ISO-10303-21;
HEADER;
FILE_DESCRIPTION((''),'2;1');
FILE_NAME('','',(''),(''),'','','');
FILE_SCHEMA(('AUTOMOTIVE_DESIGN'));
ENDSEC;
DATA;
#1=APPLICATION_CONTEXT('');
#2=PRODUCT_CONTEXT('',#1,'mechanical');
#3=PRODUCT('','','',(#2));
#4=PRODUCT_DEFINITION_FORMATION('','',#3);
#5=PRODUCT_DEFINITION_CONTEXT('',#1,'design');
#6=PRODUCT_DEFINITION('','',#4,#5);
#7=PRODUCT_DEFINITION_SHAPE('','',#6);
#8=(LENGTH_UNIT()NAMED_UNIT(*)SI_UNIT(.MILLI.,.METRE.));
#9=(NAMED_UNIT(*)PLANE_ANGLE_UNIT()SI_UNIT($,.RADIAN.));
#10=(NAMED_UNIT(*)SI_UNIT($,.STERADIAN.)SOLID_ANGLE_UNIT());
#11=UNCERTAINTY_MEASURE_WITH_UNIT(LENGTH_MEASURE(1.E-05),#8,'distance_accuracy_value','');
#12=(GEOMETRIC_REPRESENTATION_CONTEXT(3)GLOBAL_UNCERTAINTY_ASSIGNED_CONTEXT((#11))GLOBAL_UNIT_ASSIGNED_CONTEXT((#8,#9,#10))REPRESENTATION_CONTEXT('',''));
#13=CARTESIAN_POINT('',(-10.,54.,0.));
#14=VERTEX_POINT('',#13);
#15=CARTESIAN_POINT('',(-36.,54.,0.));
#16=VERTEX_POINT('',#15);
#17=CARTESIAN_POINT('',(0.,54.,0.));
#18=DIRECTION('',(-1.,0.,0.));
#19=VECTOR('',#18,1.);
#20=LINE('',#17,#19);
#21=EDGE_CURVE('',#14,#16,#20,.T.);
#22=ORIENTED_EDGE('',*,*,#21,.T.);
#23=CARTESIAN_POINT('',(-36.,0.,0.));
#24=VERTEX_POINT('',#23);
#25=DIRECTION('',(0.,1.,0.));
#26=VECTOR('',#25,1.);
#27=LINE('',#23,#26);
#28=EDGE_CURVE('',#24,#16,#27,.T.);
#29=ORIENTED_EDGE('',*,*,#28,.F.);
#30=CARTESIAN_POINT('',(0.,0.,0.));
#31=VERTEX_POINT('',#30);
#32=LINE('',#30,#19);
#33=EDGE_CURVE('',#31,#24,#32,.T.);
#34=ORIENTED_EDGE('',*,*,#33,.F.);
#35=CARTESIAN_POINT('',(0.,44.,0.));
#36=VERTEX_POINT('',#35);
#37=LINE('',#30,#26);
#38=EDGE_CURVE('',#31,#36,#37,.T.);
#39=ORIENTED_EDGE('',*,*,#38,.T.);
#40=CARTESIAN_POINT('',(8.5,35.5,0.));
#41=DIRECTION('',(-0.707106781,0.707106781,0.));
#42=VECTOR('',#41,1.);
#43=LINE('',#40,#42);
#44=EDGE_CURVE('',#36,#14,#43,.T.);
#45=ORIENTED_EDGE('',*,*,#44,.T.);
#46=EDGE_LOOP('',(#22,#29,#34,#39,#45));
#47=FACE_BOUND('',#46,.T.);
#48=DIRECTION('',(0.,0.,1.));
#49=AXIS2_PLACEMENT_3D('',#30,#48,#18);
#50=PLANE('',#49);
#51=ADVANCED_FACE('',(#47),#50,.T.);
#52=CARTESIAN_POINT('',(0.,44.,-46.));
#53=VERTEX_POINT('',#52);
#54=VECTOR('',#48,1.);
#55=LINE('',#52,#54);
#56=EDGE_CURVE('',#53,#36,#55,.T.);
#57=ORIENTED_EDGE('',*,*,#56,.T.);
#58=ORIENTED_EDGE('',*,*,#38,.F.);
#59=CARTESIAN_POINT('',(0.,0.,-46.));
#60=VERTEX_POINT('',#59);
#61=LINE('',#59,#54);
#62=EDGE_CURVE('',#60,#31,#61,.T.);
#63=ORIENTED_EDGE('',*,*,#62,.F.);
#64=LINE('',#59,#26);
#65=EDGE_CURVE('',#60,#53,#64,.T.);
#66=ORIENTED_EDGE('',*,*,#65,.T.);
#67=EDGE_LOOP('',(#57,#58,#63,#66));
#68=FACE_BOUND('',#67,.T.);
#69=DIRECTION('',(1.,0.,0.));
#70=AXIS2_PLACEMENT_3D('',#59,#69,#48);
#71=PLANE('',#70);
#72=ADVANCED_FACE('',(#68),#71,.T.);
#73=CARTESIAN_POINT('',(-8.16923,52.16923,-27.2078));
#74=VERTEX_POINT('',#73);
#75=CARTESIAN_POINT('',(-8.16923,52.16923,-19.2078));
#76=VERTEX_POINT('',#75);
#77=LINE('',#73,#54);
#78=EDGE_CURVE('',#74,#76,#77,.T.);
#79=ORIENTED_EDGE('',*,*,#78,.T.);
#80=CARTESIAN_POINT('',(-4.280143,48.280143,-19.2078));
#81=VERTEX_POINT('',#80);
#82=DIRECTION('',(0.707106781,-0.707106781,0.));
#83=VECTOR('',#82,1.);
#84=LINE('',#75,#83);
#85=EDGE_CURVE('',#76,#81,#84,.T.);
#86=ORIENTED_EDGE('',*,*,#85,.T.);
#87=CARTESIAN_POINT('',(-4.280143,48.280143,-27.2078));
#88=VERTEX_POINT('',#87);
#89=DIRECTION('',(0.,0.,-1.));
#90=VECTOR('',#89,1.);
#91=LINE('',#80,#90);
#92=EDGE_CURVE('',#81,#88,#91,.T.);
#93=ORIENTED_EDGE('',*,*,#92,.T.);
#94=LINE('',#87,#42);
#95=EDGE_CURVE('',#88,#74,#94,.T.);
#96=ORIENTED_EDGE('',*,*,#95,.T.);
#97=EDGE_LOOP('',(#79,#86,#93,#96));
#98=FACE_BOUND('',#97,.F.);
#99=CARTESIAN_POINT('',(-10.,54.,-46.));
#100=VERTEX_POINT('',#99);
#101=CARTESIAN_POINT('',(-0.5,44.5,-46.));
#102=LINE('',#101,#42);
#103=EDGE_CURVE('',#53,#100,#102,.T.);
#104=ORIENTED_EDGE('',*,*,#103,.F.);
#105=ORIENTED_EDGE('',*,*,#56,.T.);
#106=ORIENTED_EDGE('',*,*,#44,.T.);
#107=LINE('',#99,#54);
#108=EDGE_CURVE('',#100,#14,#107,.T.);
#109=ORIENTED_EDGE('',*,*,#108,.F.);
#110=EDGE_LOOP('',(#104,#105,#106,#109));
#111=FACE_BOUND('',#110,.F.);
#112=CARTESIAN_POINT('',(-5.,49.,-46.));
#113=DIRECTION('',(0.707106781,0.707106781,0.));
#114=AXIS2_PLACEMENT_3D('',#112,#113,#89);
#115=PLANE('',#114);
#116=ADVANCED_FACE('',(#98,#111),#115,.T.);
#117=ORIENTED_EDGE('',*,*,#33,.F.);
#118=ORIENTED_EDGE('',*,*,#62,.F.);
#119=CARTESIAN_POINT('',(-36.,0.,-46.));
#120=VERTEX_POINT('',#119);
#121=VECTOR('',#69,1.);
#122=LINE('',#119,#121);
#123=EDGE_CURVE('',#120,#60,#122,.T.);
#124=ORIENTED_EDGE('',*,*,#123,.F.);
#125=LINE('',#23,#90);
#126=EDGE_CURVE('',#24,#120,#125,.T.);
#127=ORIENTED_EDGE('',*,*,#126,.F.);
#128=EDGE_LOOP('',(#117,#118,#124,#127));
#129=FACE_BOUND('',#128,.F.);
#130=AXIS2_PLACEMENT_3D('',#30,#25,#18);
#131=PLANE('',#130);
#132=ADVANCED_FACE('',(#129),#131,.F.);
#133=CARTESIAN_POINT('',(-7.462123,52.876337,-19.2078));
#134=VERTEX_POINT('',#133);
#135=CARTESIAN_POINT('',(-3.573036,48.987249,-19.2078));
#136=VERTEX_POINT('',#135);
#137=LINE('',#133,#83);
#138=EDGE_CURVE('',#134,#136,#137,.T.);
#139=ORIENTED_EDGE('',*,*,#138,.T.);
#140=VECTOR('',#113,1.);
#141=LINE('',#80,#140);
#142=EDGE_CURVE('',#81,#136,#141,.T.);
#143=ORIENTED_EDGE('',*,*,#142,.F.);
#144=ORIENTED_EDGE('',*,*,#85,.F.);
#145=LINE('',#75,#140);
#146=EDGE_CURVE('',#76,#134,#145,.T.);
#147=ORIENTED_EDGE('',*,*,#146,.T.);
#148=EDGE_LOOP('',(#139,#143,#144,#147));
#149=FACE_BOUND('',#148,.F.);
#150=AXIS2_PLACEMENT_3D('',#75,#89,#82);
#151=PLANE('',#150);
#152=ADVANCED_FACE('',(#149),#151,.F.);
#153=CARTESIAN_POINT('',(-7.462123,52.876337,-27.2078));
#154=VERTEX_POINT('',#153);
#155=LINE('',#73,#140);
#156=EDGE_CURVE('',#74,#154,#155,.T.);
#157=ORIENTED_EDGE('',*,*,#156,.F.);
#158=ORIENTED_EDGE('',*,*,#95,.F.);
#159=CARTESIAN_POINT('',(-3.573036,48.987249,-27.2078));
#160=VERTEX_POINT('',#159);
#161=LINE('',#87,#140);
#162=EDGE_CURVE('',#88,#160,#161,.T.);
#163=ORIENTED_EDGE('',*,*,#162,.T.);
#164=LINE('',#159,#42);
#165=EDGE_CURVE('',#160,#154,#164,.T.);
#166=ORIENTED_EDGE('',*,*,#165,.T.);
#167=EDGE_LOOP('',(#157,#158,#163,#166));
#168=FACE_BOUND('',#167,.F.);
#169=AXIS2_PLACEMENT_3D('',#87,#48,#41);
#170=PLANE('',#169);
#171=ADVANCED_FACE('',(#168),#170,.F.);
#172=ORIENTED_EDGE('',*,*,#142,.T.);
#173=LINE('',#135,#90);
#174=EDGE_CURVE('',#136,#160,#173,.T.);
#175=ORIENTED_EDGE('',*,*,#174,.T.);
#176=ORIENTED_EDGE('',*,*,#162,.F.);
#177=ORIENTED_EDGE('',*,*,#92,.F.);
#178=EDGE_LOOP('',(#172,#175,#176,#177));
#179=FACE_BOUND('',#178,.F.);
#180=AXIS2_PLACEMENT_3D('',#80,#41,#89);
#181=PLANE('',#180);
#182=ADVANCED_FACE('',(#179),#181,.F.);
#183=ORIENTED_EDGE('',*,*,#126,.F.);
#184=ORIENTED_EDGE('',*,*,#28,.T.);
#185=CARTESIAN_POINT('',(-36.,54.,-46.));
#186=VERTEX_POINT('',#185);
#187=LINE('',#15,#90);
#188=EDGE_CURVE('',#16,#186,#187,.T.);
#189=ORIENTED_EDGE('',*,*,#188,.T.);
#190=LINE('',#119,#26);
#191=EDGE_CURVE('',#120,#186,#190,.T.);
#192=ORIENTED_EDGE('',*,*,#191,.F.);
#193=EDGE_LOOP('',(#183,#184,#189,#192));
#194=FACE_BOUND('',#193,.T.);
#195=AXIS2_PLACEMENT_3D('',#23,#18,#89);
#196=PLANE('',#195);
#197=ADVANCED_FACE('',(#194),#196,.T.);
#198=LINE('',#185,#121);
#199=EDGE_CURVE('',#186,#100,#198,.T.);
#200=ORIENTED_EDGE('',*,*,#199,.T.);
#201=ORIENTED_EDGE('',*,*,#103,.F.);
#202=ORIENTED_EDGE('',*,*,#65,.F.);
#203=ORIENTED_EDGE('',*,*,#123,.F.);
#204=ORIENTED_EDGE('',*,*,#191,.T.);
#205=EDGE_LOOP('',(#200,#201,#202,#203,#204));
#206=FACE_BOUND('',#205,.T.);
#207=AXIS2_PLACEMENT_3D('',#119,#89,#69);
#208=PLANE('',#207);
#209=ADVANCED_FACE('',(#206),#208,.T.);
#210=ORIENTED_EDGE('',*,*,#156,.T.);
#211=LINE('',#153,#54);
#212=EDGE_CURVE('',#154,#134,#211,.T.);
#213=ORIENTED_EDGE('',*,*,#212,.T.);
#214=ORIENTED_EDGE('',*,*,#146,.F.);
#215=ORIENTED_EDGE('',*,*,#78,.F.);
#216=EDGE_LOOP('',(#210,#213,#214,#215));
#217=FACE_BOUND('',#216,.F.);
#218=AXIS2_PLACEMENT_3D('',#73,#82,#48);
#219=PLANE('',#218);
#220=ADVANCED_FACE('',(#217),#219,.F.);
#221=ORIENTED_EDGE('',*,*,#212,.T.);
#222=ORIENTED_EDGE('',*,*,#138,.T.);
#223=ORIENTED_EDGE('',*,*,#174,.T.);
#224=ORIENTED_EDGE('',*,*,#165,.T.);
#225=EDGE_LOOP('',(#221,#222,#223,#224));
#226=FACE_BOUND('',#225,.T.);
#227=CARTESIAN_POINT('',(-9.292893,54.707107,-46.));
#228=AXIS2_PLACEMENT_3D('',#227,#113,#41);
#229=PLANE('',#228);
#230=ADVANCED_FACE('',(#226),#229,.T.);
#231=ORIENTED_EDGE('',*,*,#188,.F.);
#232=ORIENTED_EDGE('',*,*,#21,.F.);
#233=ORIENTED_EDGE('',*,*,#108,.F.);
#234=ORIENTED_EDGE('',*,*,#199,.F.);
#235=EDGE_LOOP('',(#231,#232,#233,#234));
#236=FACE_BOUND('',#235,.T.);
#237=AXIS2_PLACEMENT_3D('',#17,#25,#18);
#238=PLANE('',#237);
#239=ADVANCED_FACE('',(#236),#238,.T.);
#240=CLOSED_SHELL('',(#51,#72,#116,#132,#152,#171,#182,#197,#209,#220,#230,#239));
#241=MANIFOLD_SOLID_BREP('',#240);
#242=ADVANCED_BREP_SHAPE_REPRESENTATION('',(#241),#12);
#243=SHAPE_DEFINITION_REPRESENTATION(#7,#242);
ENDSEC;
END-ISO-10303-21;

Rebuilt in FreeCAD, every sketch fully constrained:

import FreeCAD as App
import Part
import Sketcher


def edges_at(feature, points):
    """Names of the edges that pass closest to the given points."""
    edges = feature.Shape.Edges
    near = lambda p: min(range(len(edges)), key=lambda i: edges[i].distToShape(Part.Vertex(*p))[0])
    return sorted({f"Edge{near(p) + 1}" for p in points})


def add_polygon(sketch, points):
    """Adds a closed chain of lines whose ends are joined by coincident constraints."""
    first, n = sketch.GeometryCount, len(points)
    for a, b in zip(points, points[1:] + points[:1]):
        sketch.addGeometry(Part.LineSegment(App.Vector(*a, 0), App.Vector(*b, 0)), False)
    for i in range(n):
        sketch.addConstraint(Sketcher.Constraint("Coincident", first + i, 2, first + (i + 1) % n, 1))

doc = App.newDocument("Part")
params = doc.addObject("Spreadsheet::Sheet", "Params")
for row, (alias, value) in enumerate([
    ("sketch1_width", "36 mm"),
    ("sketch1_height", "46 mm"),
    ("pad1_length", "54 mm"),
    ("chamfer_size", "10 mm"),
    ("sketch2_height", "8 mm"),
    ("sketch2_width", "5.5 mm"),
    ("pad2_length", "1 mm"),
], start=1):
    params.set(f"A{row}", alias)
    params.set(f"B{row}", "=" + value)
    params.setAlias(f"B{row}", alias)

body = doc.addObject("PartDesign::Body", "Body")

# Sketch on XZ plane
sketch1 = doc.addObject("Sketcher::SketchObject", "Sketch")
body.addObject(sketch1)
sketch1.AttachmentSupport = (doc.XZ_Plane, [""])
sketch1.MapMode = "FlatFace"
add_polygon(sketch1, [(-36, 0), (0, 0), (0, -46), (-36, -46)])  # lines 0-3
sketch1.addConstraint([
    Sketcher.Constraint("Horizontal", 0),
    Sketcher.Constraint("Vertical", 1),
    Sketcher.Constraint("Horizontal", 2),
    Sketcher.Constraint("Vertical", 3),
    Sketcher.Constraint("Coincident", 0, 2, -1, 1),
    Sketcher.Constraint("DistanceX", 0, 1, 0, 2, 36.0),
    Sketcher.Constraint("DistanceY", 1, 2, 1, 1, 46.0),
])
sketch1.setExpression("Constraints[9]", "Params.sketch1_width")
sketch1.setExpression("Constraints[10]", "Params.sketch1_height")
pad1 = doc.addObject("PartDesign::Pad", "Pad")
body.addObject(pad1)
pad1.Profile = sketch1
pad1.setExpression("Length", "Params.pad1_length")
pad1.Reversed = True
doc.recompute()

chamfer = doc.addObject("PartDesign::Chamfer", "Chamfer")
body.addObject(chamfer)
chamfer.Base = (pad1, edges_at(pad1, [(0, 54, -23)]))
chamfer.setExpression("Size", "Params.chamfer_size")

# Sketch on an angled plane
sketch2 = doc.addObject("Sketcher::SketchObject", "Sketch001")
body.addObject(sketch2)
sketch2.Placement = App.Placement(App.Vector(-10, 54, -46), App.Rotation(App.Vector(-0.707106781, 0.707106781, 0), App.Vector(0, 0, 0.999999999), App.Vector(0.707106781, 0.707106781, 0), "ZXY"))
add_polygon(sketch2, [(-2.5891, 18.7922), (-2.5891, 26.7922), (-8.0891, 26.7922), (-8.0891, 18.7922)])  # lines 0-3
sketch2.addConstraint([
    Sketcher.Constraint("Vertical", 0),
    Sketcher.Constraint("Horizontal", 1),
    Sketcher.Constraint("Vertical", 2),
    Sketcher.Constraint("Horizontal", 3),
    Sketcher.Constraint("DistanceY", 0, 1, 0, 2, 8.0),
    Sketcher.Constraint("DistanceX", 1, 2, 1, 1, 5.5),
    Sketcher.Constraint("DistanceX", 0, 2, -1, 1, 2.589),
    Sketcher.Constraint("DistanceY", -1, 1, 0, 2, 26.7922),
])
sketch2.setExpression("Constraints[8]", "Params.sketch2_height")
sketch2.setExpression("Constraints[9]", "Params.sketch2_width")
pad2 = doc.addObject("PartDesign::Pad", "Pad001")
body.addObject(pad2)
pad2.Profile = sketch2
pad2.setExpression("Length", "Params.pad2_length")

doc.recompute()
